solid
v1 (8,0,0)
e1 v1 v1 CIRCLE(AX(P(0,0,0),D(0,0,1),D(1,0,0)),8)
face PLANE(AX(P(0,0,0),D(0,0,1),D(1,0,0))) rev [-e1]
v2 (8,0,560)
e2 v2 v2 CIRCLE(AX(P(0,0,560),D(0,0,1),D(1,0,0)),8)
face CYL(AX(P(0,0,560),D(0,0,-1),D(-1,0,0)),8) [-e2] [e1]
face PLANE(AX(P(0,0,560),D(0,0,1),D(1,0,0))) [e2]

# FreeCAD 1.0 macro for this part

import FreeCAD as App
import Part
import Sketcher

doc = App.newDocument("Part")
body = doc.addObject("PartDesign::Body", "Body")

sketch1 = body.newObject("Sketcher::SketchObject", "Sketch")
sketch1.AttachmentSupport = (doc.getObject("XY_Plane"), [""])
sketch1.MapMode = "FlatFace"
sketch1.addGeometry(Part.Circle(App.Vector(0, 0, 0), App.Vector(0, 0, 1), 8), False)
sketch1.addConstraint([
    Sketcher.Constraint("Coincident", 0, 3, -1, 1),
    Sketcher.Constraint("Diameter", 0, 16.0),
])
pad1 = body.newObject("PartDesign::Pad", "Pad")
pad1.Profile = sketch1
pad1.Length = 560

doc.recompute()
